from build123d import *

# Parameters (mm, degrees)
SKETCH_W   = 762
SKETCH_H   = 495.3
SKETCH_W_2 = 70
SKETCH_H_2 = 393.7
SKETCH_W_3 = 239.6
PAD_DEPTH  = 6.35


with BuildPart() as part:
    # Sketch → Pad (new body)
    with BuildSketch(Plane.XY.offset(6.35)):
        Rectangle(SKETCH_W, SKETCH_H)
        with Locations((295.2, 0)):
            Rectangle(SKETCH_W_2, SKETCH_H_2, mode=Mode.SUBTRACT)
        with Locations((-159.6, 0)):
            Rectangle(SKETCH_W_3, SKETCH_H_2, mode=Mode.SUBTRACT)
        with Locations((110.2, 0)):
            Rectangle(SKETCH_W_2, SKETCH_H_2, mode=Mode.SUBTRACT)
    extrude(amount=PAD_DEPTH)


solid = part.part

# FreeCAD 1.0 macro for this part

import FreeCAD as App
import Part
import Sketcher
from FreeCAD import Vector
Q = App.Units.Quantity

doc = App.newDocument("Part")
body = doc.addObject("PartDesign::Body", "Body")

# Sketch on XY plane
sketch1 = body.newObject("Sketcher::SketchObject", "Sketch")
sketch1.AttachmentSupport = (doc.getObject("XY_Plane"), [""])
sketch1.MapMode = "FlatFace"
sketch1.AttachmentOffset = App.Placement(Vector(0, 0, 0.25 * 25.4), App.Rotation())
sketch1.addGeometry(Part.LineSegment(Vector(-381, 248, 0), Vector(-381, -248, 0)), False)
sketch1.addGeometry(Part.LineSegment(Vector(-381, -248, 0), Vector(381, -248, 0)), False)
sketch1.addGeometry(Part.LineSegment(Vector(381, -248, 0), Vector(381, 248, 0)), False)
sketch1.addGeometry(Part.LineSegment(Vector(381, 248, 0), Vector(-381, 248, 0)), False)
sketch1.addGeometry(Part.LineSegment(Vector(-40, -197, 0), Vector(-279, -197, 0)), False)
sketch1.addGeometry(Part.LineSegment(Vector(-279, -197, 0), Vector(-279, 197, 0)), False)
sketch1.addGeometry(Part.LineSegment(Vector(-279, 197, 0), Vector(-40, 197, 0)), False)
sketch1.addGeometry(Part.LineSegment(Vector(-40, 197, 0), Vector(-40, -197, 0)), False)
sketch1.addGeometry(Part.LineSegment(Vector(145, -197, 0), Vector(75, -197, 0)), False)
sketch1.addGeometry(Part.LineSegment(Vector(75, -197, 0), Vector(75, 197, 0)), False)
sketch1.addGeometry(Part.LineSegment(Vector(75, 197, 0), Vector(145, 197, 0)), False)
sketch1.addGeometry(Part.LineSegment(Vector(145, 197, 0), Vector(145, -197, 0)), False)
sketch1.addGeometry(Part.LineSegment(Vector(330, -197, 0), Vector(260, -197, 0)), False)
sketch1.addGeometry(Part.LineSegment(Vector(260, -197, 0), Vector(260, 197, 0)), False)
sketch1.addGeometry(Part.LineSegment(Vector(260, 197, 0), Vector(330, 197, 0)), False)
sketch1.addGeometry(Part.LineSegment(Vector(330, 197, 0), Vector(330, -197, 0)), False)
sketch1.addConstraint(Sketcher.Constraint("Coincident", 0, 2, 1, 1))
sketch1.addConstraint(Sketcher.Constraint("Coincident", 1, 2, 2, 1))
sketch1.addConstraint(Sketcher.Constraint("Coincident", 2, 2, 3, 1))
sketch1.addConstraint(Sketcher.Constraint("Coincident", 3, 2, 0, 1))
sketch1.addConstraint(Sketcher.Constraint("Coincident", 4, 2, 5, 1))
sketch1.addConstraint(Sketcher.Constraint("Coincident", 5, 2, 6, 1))
sketch1.addConstraint(Sketcher.Constraint("Coincident", 6, 2, 7, 1))
sketch1.addConstraint(Sketcher.Constraint("Coincident", 7, 2, 4, 1))
sketch1.addConstraint(Sketcher.Constraint("Coincident", 8, 2, 9, 1))
sketch1.addConstraint(Sketcher.Constraint("Coincident", 9, 2, 10, 1))
sketch1.addConstraint(Sketcher.Constraint("Coincident", 10, 2, 11, 1))
sketch1.addConstraint(Sketcher.Constraint("Coincident", 11, 2, 8, 1))
sketch1.addConstraint(Sketcher.Constraint("Coincident", 12, 2, 13, 1))
sketch1.addConstraint(Sketcher.Constraint("Coincident", 13, 2, 14, 1))
sketch1.addConstraint(Sketcher.Constraint("Coincident", 14, 2, 15, 1))
sketch1.addConstraint(Sketcher.Constraint("Coincident", 15, 2, 12, 1))
sketch1.addConstraint(Sketcher.Constraint("Vertical", 0))
sketch1.addConstraint(Sketcher.Constraint("Horizontal", 1))
sketch1.addConstraint(Sketcher.Constraint("Vertical", 2))
sketch1.addConstraint(Sketcher.Constraint("Horizontal", 3))
sketch1.addConstraint(Sketcher.Constraint("Horizontal", 4))
sketch1.addConstraint(Sketcher.Constraint("Vertical", 5))
sketch1.addConstraint(Sketcher.Constraint("Horizontal", 6))
sketch1.addConstraint(Sketcher.Constraint("Vertical", 7))
sketch1.addConstraint(Sketcher.Constraint("Horizontal", 8))
sketch1.addConstraint(Sketcher.Constraint("Vertical", 9))
sketch1.addConstraint(Sketcher.Constraint("Horizontal", 10))
sketch1.addConstraint(Sketcher.Constraint("Vertical", 11))
sketch1.addConstraint(Sketcher.Constraint("Horizontal", 12))
sketch1.addConstraint(Sketcher.Constraint("Vertical", 13))
sketch1.addConstraint(Sketcher.Constraint("Horizontal", 14))
sketch1.addConstraint(Sketcher.Constraint("Vertical", 15))
sketch1.addConstraint(Sketcher.Constraint("Symmetric", 0, 2, 2, 2, -1, 1))
sketch1.addConstraint(Sketcher.Constraint("Horizontal", 7, 2, 8, 2))
sketch1.addConstraint(Sketcher.Constraint("Horizontal", 6, 2, 9, 2))
sketch1.addConstraint(Sketcher.Constraint("Horizontal", 11, 2, 12, 2))
sketch1.addConstraint(Sketcher.Constraint("Horizontal", 10, 2, 13, 2))
sketch1.addConstraint(Sketcher.Constraint("Equal", 10, 12))
sketch1.addConstraint(Sketcher.Constraint("DistanceX", 1, 1, 1, 2, Q("30 in")))
sketch1.addConstraint(Sketcher.Constraint("DistanceY", 0, 2, 0, 1, Q("19.5 in")))
sketch1.addConstraint(Sketcher.Constraint("DistanceY", 5, 1, 5, 2, Q("15.5 in")))
sketch1.addConstraint(Sketcher.Constraint("DistanceX", 4, 2, -1, 1, Q("11 in")))
sketch1.addConstraint(Sketcher.Constraint("DistanceX", -1, 1, 14, 2, Q("13 in")))
sketch1.addConstraint(Sketcher.Constraint("DistanceY", 0, 2, 4, 2, Q("2 in")))
sketch1.addConstraint(Sketcher.Constraint("DistanceX", 4, 2, 4, 1, Q("239.6 mm")))
sketch1.addConstraint(Sketcher.Constraint("DistanceX", 8, 2, 8, 1, Q("70 mm")))
sketch1.addConstraint(Sketcher.Constraint("DistanceX", -1, 1, 8, 2, Q("75.2 mm")))
pad1 = body.newObject("PartDesign::Pad", "Pad")
pad1.Profile = sketch1
pad1.Length = Q("0.25 in")

doc.recompute()
